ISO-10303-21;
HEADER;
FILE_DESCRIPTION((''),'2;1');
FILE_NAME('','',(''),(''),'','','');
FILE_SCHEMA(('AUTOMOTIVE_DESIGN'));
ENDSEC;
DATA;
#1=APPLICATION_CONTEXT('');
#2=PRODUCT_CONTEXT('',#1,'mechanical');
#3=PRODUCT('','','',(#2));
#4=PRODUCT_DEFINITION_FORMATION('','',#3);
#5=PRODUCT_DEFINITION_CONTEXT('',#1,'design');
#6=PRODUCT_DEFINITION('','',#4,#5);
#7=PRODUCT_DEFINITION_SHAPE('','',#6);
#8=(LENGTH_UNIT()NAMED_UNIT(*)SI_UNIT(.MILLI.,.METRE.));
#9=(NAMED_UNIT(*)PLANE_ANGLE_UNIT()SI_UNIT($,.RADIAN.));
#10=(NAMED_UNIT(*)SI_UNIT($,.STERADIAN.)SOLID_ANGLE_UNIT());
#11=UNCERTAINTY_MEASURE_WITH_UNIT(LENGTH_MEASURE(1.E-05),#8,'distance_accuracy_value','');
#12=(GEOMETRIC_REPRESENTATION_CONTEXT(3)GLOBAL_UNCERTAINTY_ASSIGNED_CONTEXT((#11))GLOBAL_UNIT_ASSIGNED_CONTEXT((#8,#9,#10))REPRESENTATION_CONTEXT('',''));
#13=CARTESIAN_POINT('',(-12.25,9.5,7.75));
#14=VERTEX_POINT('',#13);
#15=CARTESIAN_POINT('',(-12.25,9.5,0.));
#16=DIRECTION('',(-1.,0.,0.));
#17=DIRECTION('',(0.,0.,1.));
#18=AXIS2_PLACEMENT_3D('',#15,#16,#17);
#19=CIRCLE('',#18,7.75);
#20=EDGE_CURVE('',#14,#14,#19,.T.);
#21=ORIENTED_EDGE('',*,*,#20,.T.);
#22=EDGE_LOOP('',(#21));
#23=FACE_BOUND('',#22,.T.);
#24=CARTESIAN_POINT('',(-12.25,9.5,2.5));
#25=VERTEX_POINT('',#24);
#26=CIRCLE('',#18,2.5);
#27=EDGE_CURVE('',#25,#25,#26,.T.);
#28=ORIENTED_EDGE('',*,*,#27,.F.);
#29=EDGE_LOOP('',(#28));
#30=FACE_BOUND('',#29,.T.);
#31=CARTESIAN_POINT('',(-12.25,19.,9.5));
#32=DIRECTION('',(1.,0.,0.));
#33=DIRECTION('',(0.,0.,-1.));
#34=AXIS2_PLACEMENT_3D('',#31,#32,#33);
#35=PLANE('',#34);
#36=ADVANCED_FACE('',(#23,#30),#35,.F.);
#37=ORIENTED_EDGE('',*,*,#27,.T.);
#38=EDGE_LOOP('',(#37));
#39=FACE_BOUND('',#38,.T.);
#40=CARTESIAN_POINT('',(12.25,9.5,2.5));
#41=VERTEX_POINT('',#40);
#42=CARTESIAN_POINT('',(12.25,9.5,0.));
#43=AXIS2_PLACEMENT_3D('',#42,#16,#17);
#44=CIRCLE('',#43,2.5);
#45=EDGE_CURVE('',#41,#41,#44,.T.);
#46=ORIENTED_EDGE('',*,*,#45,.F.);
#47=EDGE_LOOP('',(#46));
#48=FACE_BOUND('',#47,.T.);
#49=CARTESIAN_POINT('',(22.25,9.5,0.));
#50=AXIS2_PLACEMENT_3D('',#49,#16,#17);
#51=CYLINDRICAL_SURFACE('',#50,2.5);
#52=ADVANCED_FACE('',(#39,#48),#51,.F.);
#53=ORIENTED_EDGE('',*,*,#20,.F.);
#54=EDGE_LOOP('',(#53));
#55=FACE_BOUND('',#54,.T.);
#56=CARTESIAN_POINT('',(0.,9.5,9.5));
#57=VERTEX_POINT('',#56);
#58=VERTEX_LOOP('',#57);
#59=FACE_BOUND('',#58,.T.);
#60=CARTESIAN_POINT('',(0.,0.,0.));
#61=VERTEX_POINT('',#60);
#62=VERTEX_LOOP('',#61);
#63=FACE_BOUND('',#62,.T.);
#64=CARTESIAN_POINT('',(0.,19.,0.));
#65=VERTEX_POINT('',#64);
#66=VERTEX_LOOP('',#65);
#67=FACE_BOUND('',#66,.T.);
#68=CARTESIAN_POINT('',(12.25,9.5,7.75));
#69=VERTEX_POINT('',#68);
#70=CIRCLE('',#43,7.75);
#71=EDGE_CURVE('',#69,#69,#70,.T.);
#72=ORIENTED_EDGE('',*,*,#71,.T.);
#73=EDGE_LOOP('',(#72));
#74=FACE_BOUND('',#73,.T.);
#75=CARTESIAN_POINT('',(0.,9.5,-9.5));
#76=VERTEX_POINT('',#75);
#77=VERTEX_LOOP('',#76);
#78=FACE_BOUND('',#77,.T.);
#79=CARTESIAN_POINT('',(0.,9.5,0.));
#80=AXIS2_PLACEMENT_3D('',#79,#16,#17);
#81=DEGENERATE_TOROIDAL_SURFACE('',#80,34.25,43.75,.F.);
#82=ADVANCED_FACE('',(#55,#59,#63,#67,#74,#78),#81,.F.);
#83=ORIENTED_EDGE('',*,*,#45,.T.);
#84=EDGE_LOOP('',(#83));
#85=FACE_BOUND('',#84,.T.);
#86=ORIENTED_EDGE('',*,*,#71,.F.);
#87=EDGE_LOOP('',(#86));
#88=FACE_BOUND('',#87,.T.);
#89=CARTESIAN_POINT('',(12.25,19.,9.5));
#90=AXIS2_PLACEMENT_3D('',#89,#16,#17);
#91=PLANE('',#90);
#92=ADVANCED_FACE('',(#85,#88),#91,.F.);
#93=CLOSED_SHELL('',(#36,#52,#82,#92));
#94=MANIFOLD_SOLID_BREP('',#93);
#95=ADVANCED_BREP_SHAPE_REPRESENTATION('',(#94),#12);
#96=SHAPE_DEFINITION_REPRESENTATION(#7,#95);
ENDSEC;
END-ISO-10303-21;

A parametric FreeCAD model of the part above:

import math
import FreeCAD as App
import Part
import Sketcher

V = App.Vector

doc = App.newDocument("Part")
body = doc.addObject("PartDesign::Body", "Body")

# Sketch on XZ plane
sketch1 = body.newObject("Sketcher::SketchObject", "Sketch")
sketch1.AttachmentSupport = (doc.getObject("XZ_Plane"), [""])
sketch1.MapMode = "FlatFace"
sketch1.addGeometry(Part.LineSegment(V(-12, -10, 0), V(-12, 10, 0)), False)
sketch1.addGeometry(Part.LineSegment(V(-12, 10, 0), V(12, 10, 0)), False)
sketch1.addGeometry(Part.LineSegment(V(12, 10, 0), V(12, -10, 0)), False)
sketch1.addGeometry(Part.LineSegment(V(12, -10, 0), V(-12, -10, 0)), False)
sketch1.addConstraint(Sketcher.Constraint("Coincident", 0, 2, 1, 1))
sketch1.addConstraint(Sketcher.Constraint("Coincident", 1, 2, 2, 1))
sketch1.addConstraint(Sketcher.Constraint("Coincident", 2, 2, 3, 1))
sketch1.addConstraint(Sketcher.Constraint("Coincident", 3, 2, 0, 1))
sketch1.addConstraint(Sketcher.Constraint("Vertical", 0))
sketch1.addConstraint(Sketcher.Constraint("Horizontal", 1))
sketch1.addConstraint(Sketcher.Constraint("Vertical", 2))
sketch1.addConstraint(Sketcher.Constraint("Horizontal", 3))
sketch1.addConstraint(Sketcher.Constraint("Symmetric", 0, 2, 2, 2, -1, 1))
sketch1.addConstraint(Sketcher.Constraint("DistanceY", 0, 1, 0, 2, 19.0))
sketch1.addConstraint(Sketcher.Constraint("DistanceX", 1, 1, 1, 2, 24.5))
pad1 = body.newObject("PartDesign::Pad", "Pad")
pad1.Profile = sketch1
pad1.Length = 19
pad1.Reversed = True

# Sketch on XZ plane
sketch2 = body.newObject("Sketcher::SketchObject", "Sketch001")
sketch2.AttachmentSupport = (doc.getObject("XZ_Plane"), [""])
sketch2.MapMode = "FlatFace"
sketch2.AttachmentOffset = App.Placement(V(0, 0, -9.5), App.Rotation())
sketch2.addGeometry(Part.LineSegment(V(-12, -18, 0), V(-12, -8, 0)), False)
sketch2.addGeometry(Part.ArcOfCircle(Part.Circle(V(0, 34, 0), V(0, 0, 1), 44), math.radians(-106), math.radians(-74)), False)
sketch2.addGeometry(Part.LineSegment(V(12, -8, 0), V(12, -18, 0)), False)
sketch2.addGeometry(Part.LineSegment(V(12, -18, 0), V(-12, -18, 0)), False)
sketch2.addConstraint(Sketcher.Constraint("Coincident", 0, 2, 1, 1))
sketch2.addConstraint(Sketcher.Constraint("Coincident", 1, 2, 2, 1))
sketch2.addConstraint(Sketcher.Constraint("Coincident", 2, 2, 3, 1))
sketch2.addConstraint(Sketcher.Constraint("Coincident", 3, 2, 0, 1))
sketch2.addConstraint(Sketcher.Constraint("Vertical", 0))
sketch2.addConstraint(Sketcher.Constraint("Vertical", 2))
sketch2.addConstraint(Sketcher.Constraint("Horizontal", 3))
sketch2.addConstraint(Sketcher.Constraint("Symmetric", 0, 2, 1, 2, -2))
sketch2.addConstraint(Sketcher.Constraint("Radius", 1, 43.75))
sketch2.addConstraint(Sketcher.Constraint("DistanceX", 3, 2, 3, 1, 24.5))
sketch2.addConstraint(Sketcher.Constraint("DistanceY", -1, 1, 1, 3, 34.25))
sketch2.addConstraint(Sketcher.Constraint("DistanceY", 0, 1, 0, 2, 10.471479))
groove = body.newObject("PartDesign::Groove", "Groove")
groove.Profile = sketch2
groove.ReferenceAxis = (sketch2, ["H_Axis"])
groove.Angle = 360

# Sketch on YZ plane
sketch3 = body.newObject("Sketcher::SketchObject", "Sketch002")
sketch3.AttachmentSupport = (doc.getObject("YZ_Plane"), [""])
sketch3.MapMode = "FlatFace"
sketch3.AttachmentOffset = App.Placement(V(0, 0, -12.25), App.Rotation())
sketch3.addGeometry(Part.Circle(V(9.5, 0, 0), V(0, 0, 1), 2.5), False)
sketch3.addConstraint(Sketcher.Constraint("PointOnObject", 0, 3, -1))
sketch3.addConstraint(Sketcher.Constraint("Diameter", 0, 5.0))
sketch3.addConstraint(Sketcher.Constraint("DistanceX", -1, 1, 0, 3, 9.5))
pocket1 = body.newObject("PartDesign::Pocket", "Pocket")
pocket1.Profile = sketch3
pocket1.Length = 34.5
pocket1.Reversed = True

doc.recompute()
